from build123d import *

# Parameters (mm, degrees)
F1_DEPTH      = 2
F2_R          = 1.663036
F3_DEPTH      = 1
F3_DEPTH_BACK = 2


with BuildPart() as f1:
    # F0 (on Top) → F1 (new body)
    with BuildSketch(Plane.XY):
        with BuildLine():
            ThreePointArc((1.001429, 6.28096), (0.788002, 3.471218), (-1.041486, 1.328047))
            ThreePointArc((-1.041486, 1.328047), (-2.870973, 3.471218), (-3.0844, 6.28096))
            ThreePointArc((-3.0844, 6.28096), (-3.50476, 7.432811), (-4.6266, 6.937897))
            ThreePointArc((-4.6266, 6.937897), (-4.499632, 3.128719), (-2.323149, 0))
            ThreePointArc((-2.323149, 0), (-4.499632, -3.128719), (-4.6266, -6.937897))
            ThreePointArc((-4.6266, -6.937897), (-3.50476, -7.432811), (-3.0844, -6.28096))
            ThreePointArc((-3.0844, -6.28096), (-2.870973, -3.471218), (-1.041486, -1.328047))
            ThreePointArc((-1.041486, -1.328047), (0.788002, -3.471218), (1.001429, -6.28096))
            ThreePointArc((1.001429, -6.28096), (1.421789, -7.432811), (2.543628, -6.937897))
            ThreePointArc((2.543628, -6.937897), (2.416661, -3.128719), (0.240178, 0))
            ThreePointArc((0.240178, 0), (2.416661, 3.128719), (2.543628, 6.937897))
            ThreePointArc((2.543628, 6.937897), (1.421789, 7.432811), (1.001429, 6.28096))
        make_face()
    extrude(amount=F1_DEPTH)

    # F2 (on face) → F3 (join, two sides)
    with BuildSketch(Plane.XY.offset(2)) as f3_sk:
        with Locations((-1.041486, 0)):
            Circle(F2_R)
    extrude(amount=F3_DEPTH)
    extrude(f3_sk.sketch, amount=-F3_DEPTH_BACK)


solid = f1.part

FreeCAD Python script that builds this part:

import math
import FreeCAD as App
import Part
import Sketcher
Q = App.Units.Quantity

doc = App.newDocument("Part")
body = doc.addObject("PartDesign::Body", "Body")

sketch1 = doc.addObject("Sketcher::SketchObject", "Sketch")
body.addObject(sketch1)
sketch1.AttachmentSupport = (doc.XY_Plane, [""])
sketch1.MapMode = "FlatFace"
sketch1.addGeometry(Part.ArcOfCircle(Part.Circle(App.Vector(-3.4, 5.2, 0), App.Vector(0, 0, 1), 4.5), math.radians(-59), math.radians(14)), False)
sketch1.addGeometry(Part.ArcOfCircle(Part.Circle(App.Vector(1.3, 5.2, 0), App.Vector(0, 0, 1), 4.5), math.radians(166), math.radians(239)), False)
sketch1.addGeometry(Part.ArcOfCircle(Part.Circle(App.Vector(-3.8, 6.7, 0), App.Vector(0, 0, 1), 0.8), math.radians(-27), math.radians(161)), False)
sketch1.addGeometry(Part.ArcOfCircle(Part.Circle(App.Vector(1.9, 5.2, 0), App.Vector(0, 0, 1), 6.7), math.radians(165), math.radians(231)), False)
sketch1.addGeometry(Part.ArcOfCircle(Part.Circle(App.Vector(1.9, -5.2, 0), App.Vector(0, 0, 1), 6.7), math.radians(129), math.radians(195)), False)
sketch1.addGeometry(Part.ArcOfCircle(Part.Circle(App.Vector(-3.8, -6.7, 0), App.Vector(0, 0, 1), 0.8), math.radians(-161), math.radians(27)), False)
sketch1.addGeometry(Part.ArcOfCircle(Part.Circle(App.Vector(1.3, -5.2, 0), App.Vector(0, 0, 1), 4.5), math.radians(121), math.radians(194)), False)
sketch1.addGeometry(Part.ArcOfCircle(Part.Circle(App.Vector(-3.4, -5.2, 0), App.Vector(0, 0, 1), 4.5), math.radians(-14), math.radians(59)), False)
sketch1.addGeometry(Part.ArcOfCircle(Part.Circle(App.Vector(1.8, -6.7, 0), App.Vector(0, 0, 1), 0.8), math.radians(153), math.radians(341)), False)
sketch1.addGeometry(Part.ArcOfCircle(Part.Circle(App.Vector(-4, -5.2, 0), App.Vector(0, 0, 1), 6.7), math.radians(-15), math.radians(51)), False)
sketch1.addGeometry(Part.ArcOfCircle(Part.Circle(App.Vector(-4, 5.2, 0), App.Vector(0, 0, 1), 6.7), math.radians(-51), math.radians(15)), False)
sketch1.addGeometry(Part.ArcOfCircle(Part.Circle(App.Vector(1.8, 6.7, 0), App.Vector(0, 0, 1), 0.8), math.radians(19), math.radians(207)), False)
sketch1.addConstraint(Sketcher.Constraint("Coincident", 0, 1, 1, 2))
sketch1.addConstraint(Sketcher.Constraint("Coincident", 1, 1, 2, 1))
sketch1.addConstraint(Sketcher.Constraint("Coincident", 2, 2, 3, 1))
sketch1.addConstraint(Sketcher.Constraint("Coincident", 3, 2, 4, 1))
sketch1.addConstraint(Sketcher.Constraint("Coincident", 4, 2, 5, 1))
sketch1.addConstraint(Sketcher.Constraint("Coincident", 5, 2, 6, 2))
sketch1.addConstraint(Sketcher.Constraint("Coincident", 6, 1, 7, 2))
sketch1.addConstraint(Sketcher.Constraint("Coincident", 7, 1, 8, 1))
sketch1.addConstraint(Sketcher.Constraint("Coincident", 8, 2, 9, 1))
sketch1.addConstraint(Sketcher.Constraint("Coincident", 9, 2, 10, 1))
sketch1.addConstraint(Sketcher.Constraint("Coincident", 10, 2, 11, 1))
sketch1.addConstraint(Sketcher.Constraint("Coincident", 11, 2, 0, 2))
sketch1.addConstraint(Sketcher.Constraint("Equal", 0, 1))
sketch1.addConstraint(Sketcher.Constraint("Equal", 3, 4))
sketch1.addConstraint(Sketcher.Constraint("Equal", 2, 5))
sketch1.addConstraint(Sketcher.Constraint("Equal", 1, 6))
sketch1.addConstraint(Sketcher.Constraint("Equal", 6, 7))
sketch1.addConstraint(Sketcher.Constraint("Equal", 5, 8))
sketch1.addConstraint(Sketcher.Constraint("Equal", 9, 10))
sketch1.addConstraint(Sketcher.Constraint("Equal", 8, 11))
sketch1.addConstraint(Sketcher.Constraint("Symmetric", 3, 3, 4, 3, -1))
sketch1.addConstraint(Sketcher.Constraint("Symmetric", 2, 3, 5, 3, -1))
sketch1.addConstraint(Sketcher.Constraint("Symmetric", 1, 3, 6, 3, -1))
sketch1.addConstraint(Sketcher.Constraint("Symmetric", 0, 3, 7, 3, -1))
sketch1.addConstraint(Sketcher.Constraint("Symmetric", 9, 3, 10, 3, -1))
sketch1.addConstraint(Sketcher.Constraint("Symmetric", 8, 3, 11, 3, -1))
sketch1.addConstraint(Sketcher.Constraint("Horizontal", 0, 3, 1, 3))
sketch1.addConstraint(Sketcher.Constraint("Horizontal", 5, 3, 8, 3))
sketch1.addConstraint(Sketcher.Constraint("Horizontal", 4, 3, 9, 3))
sketch1.addConstraint(Sketcher.Constraint("Horizontal", 5, 2, 7, 1))
sketch1.addConstraint(Sketcher.Constraint("Horizontal", 4, 2, 8, 2))
sketch1.addConstraint(Sketcher.Constraint("Radius", 2, Q("0.839949 mm")))
sketch1.addConstraint(Sketcher.Constraint("Radius", 3, Q("6.726469 mm")))
sketch1.addConstraint(Sketcher.Constraint("Radius", 0, Q("4.542105 mm")))
sketch1.addConstraint(Sketcher.Constraint("Radius", 9, Q("6.726466 mm")))
sketch1.addConstraint(Sketcher.Constraint("DistanceX", 1, 1, -1, 1, Q("3.0844 mm")))
sketch1.addConstraint(Sketcher.Constraint("DistanceX", 2, 2, -1, 1, Q("4.6266 mm")))
sketch1.addConstraint(Sketcher.Constraint("DistanceX", 5, 3, 8, 3, Q("5.5849 mm")))
sketch1.addConstraint(Sketcher.Constraint("DistanceY", 0, 1, 0, 3, Q("3.875098 mm")))
sketch1.addConstraint(Sketcher.Constraint("DistanceY", -1, 1, 2, 3, Q("6.660051 mm")))
sketch1.addConstraint(Sketcher.Constraint("DistanceY", -1, 1, 3, 3, Q("5.24821 mm")))
sketch1.addConstraint(Sketcher.Constraint("DistanceY", -1, 1, 1, 1, Q("6.28096 mm")))
pad1 = doc.addObject("PartDesign::Pad", "Pad")
body.addObject(pad1)
pad1.Profile = sketch1
pad1.Length = 2

sketch2 = doc.addObject("Sketcher::SketchObject", "Sketch001")
body.addObject(sketch2)
sketch2.AttachmentSupport = (doc.XY_Plane, [""])
sketch2.MapMode = "FlatFace"
sketch2.AttachmentOffset = App.Placement(App.Vector(0, 0, 2), App.Rotation())
sketch2.addGeometry(Part.Circle(App.Vector(-1, 0, 0), App.Vector(0, 0, 1), 1.7), False)
sketch2.addConstraint(Sketcher.Constraint("PointOnObject", 0, 3, -1))
sketch2.addConstraint(Sketcher.Constraint("Diameter", 0, Q("3.326072 mm")))
sketch2.addConstraint(Sketcher.Constraint("DistanceX", 0, 3, -1, 1, Q("1.041486 mm")))
pad2 = doc.addObject("PartDesign::Pad", "Pad001")
body.addObject(pad2)
pad2.Profile = sketch2
pad2.Type = "TwoLengths"
pad2.Length = 1
pad2.Length2 = 2

doc.recompute()
